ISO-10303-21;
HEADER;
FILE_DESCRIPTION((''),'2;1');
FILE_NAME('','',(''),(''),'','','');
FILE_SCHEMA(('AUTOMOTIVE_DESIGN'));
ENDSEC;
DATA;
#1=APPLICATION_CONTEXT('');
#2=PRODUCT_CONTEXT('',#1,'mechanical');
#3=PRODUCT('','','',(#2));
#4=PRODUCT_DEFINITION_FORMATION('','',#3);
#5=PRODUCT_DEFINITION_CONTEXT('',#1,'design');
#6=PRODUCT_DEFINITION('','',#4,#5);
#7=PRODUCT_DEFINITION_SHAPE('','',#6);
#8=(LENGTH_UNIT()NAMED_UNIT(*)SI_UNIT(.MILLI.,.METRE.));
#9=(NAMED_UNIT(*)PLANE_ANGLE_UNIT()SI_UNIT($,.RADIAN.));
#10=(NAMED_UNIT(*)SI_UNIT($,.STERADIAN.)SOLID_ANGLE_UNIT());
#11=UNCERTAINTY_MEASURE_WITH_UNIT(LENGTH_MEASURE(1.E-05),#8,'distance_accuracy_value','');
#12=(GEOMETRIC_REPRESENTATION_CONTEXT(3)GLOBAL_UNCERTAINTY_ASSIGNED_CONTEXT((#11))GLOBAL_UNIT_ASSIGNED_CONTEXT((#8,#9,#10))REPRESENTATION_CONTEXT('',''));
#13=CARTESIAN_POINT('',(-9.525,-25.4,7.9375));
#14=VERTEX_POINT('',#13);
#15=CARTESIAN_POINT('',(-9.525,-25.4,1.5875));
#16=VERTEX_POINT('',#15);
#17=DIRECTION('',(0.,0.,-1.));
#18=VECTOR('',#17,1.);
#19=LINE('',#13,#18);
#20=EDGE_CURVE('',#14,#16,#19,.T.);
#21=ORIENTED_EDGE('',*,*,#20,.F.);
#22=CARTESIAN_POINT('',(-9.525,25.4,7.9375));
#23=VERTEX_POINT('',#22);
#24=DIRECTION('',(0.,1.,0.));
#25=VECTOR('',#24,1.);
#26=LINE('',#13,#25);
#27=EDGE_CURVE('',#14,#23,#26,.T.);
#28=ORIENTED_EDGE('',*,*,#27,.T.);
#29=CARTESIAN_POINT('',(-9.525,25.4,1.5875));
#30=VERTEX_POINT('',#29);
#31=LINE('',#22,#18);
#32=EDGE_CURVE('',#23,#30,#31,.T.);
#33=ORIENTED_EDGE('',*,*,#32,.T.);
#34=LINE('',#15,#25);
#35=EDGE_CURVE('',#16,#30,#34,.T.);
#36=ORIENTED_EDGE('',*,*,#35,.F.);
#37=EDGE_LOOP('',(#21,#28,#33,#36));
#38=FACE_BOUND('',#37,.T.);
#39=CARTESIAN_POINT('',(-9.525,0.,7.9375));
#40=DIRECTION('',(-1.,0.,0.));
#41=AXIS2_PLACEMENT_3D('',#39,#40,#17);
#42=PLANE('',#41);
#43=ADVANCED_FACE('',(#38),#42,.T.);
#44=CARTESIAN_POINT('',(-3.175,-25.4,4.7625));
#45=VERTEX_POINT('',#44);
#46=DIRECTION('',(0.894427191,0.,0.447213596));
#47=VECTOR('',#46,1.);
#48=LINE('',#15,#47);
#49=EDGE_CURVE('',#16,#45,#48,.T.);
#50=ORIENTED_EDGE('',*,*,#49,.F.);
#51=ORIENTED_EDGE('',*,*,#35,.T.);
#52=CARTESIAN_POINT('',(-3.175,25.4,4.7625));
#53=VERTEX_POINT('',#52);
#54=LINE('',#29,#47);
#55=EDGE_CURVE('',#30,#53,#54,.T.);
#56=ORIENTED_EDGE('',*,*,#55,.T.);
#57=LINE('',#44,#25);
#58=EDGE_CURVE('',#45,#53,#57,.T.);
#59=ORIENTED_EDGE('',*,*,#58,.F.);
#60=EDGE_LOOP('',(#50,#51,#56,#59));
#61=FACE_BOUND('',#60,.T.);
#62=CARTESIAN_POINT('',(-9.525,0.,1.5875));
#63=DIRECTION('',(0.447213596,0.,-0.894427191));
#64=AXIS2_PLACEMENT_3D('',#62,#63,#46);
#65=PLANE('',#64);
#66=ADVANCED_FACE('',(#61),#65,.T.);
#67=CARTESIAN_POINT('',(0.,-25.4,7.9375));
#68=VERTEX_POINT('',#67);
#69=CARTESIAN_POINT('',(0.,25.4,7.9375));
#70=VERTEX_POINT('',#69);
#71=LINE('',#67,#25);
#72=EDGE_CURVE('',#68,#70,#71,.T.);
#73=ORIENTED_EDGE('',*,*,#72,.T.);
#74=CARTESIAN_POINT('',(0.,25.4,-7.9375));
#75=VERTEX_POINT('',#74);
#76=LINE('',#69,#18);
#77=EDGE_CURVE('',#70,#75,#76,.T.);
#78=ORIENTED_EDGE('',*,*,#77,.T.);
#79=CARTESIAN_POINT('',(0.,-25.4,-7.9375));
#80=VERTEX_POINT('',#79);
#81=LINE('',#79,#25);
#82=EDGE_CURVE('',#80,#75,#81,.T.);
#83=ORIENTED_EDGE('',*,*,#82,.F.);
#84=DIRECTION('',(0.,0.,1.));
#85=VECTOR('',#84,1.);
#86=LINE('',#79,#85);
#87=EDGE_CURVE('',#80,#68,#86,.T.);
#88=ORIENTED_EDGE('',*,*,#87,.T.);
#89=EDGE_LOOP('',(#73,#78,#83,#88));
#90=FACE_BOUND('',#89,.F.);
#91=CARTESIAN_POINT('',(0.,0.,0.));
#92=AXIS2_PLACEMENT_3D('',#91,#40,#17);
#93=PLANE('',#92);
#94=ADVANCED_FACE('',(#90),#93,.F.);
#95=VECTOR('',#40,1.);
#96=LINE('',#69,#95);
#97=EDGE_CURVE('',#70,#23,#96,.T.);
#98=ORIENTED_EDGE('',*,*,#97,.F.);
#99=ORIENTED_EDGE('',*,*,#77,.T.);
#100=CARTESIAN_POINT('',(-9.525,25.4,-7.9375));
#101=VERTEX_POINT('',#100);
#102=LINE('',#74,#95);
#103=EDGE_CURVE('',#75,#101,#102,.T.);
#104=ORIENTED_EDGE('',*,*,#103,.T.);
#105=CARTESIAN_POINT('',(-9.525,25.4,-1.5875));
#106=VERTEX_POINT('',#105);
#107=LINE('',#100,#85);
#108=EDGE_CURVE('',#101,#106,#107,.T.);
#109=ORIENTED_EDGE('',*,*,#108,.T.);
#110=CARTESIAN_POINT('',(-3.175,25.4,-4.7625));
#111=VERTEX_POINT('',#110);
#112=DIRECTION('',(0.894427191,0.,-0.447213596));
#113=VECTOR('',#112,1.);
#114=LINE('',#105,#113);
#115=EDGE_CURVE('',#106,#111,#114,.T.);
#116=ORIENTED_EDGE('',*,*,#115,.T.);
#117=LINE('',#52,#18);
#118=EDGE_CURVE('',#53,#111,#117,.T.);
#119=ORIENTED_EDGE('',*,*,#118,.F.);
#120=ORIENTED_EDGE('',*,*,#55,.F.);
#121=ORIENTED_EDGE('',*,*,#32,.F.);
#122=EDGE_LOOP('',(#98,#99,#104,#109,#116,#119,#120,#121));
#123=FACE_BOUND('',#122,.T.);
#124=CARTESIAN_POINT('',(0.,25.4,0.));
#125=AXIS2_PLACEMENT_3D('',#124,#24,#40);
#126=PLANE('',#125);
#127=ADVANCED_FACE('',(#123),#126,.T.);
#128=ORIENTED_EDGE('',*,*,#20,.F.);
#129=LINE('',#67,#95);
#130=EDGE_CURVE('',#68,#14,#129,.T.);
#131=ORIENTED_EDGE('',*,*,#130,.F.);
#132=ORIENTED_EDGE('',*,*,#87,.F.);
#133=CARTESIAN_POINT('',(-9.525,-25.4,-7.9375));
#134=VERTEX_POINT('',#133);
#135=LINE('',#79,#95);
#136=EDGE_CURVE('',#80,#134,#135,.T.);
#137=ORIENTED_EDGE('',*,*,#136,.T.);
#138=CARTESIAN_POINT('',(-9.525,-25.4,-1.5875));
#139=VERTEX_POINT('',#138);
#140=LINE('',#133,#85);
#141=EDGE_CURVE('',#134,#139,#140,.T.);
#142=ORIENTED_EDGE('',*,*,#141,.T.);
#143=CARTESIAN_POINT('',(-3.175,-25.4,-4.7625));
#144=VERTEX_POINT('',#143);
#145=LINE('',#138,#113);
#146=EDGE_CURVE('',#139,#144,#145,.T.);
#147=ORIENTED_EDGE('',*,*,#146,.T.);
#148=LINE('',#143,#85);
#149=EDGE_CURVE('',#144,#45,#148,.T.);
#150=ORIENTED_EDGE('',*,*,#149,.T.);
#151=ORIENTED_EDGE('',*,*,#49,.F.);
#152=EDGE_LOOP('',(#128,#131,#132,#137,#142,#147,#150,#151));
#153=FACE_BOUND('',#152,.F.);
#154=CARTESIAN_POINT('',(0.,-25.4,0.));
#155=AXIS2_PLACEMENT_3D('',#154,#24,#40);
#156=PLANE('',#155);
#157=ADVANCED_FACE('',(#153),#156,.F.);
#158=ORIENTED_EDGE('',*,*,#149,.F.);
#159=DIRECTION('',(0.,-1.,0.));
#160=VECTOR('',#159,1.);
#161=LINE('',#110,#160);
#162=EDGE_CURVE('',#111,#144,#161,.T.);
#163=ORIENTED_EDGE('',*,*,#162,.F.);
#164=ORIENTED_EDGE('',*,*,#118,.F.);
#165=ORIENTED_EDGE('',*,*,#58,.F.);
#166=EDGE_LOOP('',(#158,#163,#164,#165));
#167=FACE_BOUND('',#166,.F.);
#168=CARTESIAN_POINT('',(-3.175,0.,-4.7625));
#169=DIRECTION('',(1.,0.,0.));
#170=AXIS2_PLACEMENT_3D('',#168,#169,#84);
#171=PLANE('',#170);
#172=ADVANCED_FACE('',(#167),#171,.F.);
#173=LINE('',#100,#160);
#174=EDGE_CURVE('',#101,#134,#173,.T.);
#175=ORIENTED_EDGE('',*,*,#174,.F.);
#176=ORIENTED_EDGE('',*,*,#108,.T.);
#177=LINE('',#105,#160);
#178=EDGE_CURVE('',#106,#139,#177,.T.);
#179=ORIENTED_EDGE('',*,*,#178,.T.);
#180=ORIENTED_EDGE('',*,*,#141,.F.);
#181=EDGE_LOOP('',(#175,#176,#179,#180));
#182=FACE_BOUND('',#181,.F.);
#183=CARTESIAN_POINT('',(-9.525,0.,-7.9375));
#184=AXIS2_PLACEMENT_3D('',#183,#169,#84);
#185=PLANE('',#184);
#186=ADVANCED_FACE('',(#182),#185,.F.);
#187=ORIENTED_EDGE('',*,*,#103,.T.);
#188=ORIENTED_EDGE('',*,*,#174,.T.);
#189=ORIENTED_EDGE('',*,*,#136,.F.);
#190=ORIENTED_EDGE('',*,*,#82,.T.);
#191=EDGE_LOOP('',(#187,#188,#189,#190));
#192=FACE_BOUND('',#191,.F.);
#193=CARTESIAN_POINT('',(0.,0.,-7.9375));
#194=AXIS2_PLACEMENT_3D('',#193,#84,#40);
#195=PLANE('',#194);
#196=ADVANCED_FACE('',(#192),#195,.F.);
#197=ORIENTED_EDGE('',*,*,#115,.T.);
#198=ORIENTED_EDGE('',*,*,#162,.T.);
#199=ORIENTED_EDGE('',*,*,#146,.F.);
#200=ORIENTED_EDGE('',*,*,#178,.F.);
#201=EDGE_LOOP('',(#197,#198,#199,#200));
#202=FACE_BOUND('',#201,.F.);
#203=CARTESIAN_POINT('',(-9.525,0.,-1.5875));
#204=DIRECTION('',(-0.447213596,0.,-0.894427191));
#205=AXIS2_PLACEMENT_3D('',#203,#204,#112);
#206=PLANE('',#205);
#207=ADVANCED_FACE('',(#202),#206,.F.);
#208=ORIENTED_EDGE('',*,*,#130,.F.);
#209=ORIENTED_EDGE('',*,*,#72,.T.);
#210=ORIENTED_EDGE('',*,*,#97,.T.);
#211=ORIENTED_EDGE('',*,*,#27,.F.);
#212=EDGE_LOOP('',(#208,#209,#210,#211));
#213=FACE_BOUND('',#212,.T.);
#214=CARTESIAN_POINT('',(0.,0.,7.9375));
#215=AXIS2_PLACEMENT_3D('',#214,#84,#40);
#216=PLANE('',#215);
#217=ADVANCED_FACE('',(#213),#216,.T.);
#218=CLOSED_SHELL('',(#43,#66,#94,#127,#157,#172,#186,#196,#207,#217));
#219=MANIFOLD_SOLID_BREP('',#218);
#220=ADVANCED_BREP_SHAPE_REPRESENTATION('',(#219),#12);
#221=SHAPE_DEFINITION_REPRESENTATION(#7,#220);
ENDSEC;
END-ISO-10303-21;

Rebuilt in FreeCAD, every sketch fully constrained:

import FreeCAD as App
import Part
import Sketcher

V = App.Vector
Q = App.Units.Quantity


def add_polygon(sketch, points):
    """Adds a closed chain of lines whose ends are joined by coincident constraints."""
    first, n = sketch.GeometryCount, len(points)
    for a, b in zip(points, points[1:] + points[:1]):
        sketch.addGeometry(Part.LineSegment(App.Vector(*a, 0), App.Vector(*b, 0)), False)
    for i in range(n):
        sketch.addConstraint(Sketcher.Constraint("Coincident", first + i, 2, first + (i + 1) % n, 1))

doc = App.newDocument("Part")
body = doc.addObject("PartDesign::Body", "Body")

# Sketch on XZ plane
sketch1 = body.newObject("Sketcher::SketchObject", "Sketch")
sketch1.AttachmentSupport = (doc.getObject("XZ_Plane"), [""])
sketch1.MapMode = "FlatFace"
add_polygon(sketch1, [(-3.175, -4.7625), (-3.175, 4.7625), (-9.525, 1.5875), (-9.525, 7.9375), (0, 7.9375), (0, -7.9375), (-9.525, -7.9375), (-9.525, -1.5875)])  # lines 0-7
sketch1.addConstraint([
    Sketcher.Constraint("Vertical", 0),
    Sketcher.Constraint("Vertical", 2),
    Sketcher.Constraint("Horizontal", 3),
    Sketcher.Constraint("Vertical", 4),
    Sketcher.Constraint("Horizontal", 5),
    Sketcher.Constraint("Vertical", 6),
    Sketcher.Constraint("Symmetric", 3, 2, 4, 2, -1, 1),
    Sketcher.Constraint("Symmetric", 1, 2, 6, 2, -1),
    Sketcher.Constraint("Equal", 5, 0),
    Sketcher.Constraint("Equal", 1, 7),
    Sketcher.Constraint("DistanceY", 2, 1, 2, 2, Q("0.25 in")),
    Sketcher.Constraint("DistanceX", 3, 1, 3, 2, Q("0.375 in")),
    Sketcher.Constraint("DistanceX", 1, 2, 0, 2, Q("0.25 in")),
    Sketcher.Constraint("DistanceY", 6, 2, 0, 2, Q("0.25 in")),
])
pad1 = body.newObject("PartDesign::Pad", "Pad")
pad1.Profile = sketch1
pad1.Length = Q("2 in")
pad1.Midplane = True

doc.recompute()
